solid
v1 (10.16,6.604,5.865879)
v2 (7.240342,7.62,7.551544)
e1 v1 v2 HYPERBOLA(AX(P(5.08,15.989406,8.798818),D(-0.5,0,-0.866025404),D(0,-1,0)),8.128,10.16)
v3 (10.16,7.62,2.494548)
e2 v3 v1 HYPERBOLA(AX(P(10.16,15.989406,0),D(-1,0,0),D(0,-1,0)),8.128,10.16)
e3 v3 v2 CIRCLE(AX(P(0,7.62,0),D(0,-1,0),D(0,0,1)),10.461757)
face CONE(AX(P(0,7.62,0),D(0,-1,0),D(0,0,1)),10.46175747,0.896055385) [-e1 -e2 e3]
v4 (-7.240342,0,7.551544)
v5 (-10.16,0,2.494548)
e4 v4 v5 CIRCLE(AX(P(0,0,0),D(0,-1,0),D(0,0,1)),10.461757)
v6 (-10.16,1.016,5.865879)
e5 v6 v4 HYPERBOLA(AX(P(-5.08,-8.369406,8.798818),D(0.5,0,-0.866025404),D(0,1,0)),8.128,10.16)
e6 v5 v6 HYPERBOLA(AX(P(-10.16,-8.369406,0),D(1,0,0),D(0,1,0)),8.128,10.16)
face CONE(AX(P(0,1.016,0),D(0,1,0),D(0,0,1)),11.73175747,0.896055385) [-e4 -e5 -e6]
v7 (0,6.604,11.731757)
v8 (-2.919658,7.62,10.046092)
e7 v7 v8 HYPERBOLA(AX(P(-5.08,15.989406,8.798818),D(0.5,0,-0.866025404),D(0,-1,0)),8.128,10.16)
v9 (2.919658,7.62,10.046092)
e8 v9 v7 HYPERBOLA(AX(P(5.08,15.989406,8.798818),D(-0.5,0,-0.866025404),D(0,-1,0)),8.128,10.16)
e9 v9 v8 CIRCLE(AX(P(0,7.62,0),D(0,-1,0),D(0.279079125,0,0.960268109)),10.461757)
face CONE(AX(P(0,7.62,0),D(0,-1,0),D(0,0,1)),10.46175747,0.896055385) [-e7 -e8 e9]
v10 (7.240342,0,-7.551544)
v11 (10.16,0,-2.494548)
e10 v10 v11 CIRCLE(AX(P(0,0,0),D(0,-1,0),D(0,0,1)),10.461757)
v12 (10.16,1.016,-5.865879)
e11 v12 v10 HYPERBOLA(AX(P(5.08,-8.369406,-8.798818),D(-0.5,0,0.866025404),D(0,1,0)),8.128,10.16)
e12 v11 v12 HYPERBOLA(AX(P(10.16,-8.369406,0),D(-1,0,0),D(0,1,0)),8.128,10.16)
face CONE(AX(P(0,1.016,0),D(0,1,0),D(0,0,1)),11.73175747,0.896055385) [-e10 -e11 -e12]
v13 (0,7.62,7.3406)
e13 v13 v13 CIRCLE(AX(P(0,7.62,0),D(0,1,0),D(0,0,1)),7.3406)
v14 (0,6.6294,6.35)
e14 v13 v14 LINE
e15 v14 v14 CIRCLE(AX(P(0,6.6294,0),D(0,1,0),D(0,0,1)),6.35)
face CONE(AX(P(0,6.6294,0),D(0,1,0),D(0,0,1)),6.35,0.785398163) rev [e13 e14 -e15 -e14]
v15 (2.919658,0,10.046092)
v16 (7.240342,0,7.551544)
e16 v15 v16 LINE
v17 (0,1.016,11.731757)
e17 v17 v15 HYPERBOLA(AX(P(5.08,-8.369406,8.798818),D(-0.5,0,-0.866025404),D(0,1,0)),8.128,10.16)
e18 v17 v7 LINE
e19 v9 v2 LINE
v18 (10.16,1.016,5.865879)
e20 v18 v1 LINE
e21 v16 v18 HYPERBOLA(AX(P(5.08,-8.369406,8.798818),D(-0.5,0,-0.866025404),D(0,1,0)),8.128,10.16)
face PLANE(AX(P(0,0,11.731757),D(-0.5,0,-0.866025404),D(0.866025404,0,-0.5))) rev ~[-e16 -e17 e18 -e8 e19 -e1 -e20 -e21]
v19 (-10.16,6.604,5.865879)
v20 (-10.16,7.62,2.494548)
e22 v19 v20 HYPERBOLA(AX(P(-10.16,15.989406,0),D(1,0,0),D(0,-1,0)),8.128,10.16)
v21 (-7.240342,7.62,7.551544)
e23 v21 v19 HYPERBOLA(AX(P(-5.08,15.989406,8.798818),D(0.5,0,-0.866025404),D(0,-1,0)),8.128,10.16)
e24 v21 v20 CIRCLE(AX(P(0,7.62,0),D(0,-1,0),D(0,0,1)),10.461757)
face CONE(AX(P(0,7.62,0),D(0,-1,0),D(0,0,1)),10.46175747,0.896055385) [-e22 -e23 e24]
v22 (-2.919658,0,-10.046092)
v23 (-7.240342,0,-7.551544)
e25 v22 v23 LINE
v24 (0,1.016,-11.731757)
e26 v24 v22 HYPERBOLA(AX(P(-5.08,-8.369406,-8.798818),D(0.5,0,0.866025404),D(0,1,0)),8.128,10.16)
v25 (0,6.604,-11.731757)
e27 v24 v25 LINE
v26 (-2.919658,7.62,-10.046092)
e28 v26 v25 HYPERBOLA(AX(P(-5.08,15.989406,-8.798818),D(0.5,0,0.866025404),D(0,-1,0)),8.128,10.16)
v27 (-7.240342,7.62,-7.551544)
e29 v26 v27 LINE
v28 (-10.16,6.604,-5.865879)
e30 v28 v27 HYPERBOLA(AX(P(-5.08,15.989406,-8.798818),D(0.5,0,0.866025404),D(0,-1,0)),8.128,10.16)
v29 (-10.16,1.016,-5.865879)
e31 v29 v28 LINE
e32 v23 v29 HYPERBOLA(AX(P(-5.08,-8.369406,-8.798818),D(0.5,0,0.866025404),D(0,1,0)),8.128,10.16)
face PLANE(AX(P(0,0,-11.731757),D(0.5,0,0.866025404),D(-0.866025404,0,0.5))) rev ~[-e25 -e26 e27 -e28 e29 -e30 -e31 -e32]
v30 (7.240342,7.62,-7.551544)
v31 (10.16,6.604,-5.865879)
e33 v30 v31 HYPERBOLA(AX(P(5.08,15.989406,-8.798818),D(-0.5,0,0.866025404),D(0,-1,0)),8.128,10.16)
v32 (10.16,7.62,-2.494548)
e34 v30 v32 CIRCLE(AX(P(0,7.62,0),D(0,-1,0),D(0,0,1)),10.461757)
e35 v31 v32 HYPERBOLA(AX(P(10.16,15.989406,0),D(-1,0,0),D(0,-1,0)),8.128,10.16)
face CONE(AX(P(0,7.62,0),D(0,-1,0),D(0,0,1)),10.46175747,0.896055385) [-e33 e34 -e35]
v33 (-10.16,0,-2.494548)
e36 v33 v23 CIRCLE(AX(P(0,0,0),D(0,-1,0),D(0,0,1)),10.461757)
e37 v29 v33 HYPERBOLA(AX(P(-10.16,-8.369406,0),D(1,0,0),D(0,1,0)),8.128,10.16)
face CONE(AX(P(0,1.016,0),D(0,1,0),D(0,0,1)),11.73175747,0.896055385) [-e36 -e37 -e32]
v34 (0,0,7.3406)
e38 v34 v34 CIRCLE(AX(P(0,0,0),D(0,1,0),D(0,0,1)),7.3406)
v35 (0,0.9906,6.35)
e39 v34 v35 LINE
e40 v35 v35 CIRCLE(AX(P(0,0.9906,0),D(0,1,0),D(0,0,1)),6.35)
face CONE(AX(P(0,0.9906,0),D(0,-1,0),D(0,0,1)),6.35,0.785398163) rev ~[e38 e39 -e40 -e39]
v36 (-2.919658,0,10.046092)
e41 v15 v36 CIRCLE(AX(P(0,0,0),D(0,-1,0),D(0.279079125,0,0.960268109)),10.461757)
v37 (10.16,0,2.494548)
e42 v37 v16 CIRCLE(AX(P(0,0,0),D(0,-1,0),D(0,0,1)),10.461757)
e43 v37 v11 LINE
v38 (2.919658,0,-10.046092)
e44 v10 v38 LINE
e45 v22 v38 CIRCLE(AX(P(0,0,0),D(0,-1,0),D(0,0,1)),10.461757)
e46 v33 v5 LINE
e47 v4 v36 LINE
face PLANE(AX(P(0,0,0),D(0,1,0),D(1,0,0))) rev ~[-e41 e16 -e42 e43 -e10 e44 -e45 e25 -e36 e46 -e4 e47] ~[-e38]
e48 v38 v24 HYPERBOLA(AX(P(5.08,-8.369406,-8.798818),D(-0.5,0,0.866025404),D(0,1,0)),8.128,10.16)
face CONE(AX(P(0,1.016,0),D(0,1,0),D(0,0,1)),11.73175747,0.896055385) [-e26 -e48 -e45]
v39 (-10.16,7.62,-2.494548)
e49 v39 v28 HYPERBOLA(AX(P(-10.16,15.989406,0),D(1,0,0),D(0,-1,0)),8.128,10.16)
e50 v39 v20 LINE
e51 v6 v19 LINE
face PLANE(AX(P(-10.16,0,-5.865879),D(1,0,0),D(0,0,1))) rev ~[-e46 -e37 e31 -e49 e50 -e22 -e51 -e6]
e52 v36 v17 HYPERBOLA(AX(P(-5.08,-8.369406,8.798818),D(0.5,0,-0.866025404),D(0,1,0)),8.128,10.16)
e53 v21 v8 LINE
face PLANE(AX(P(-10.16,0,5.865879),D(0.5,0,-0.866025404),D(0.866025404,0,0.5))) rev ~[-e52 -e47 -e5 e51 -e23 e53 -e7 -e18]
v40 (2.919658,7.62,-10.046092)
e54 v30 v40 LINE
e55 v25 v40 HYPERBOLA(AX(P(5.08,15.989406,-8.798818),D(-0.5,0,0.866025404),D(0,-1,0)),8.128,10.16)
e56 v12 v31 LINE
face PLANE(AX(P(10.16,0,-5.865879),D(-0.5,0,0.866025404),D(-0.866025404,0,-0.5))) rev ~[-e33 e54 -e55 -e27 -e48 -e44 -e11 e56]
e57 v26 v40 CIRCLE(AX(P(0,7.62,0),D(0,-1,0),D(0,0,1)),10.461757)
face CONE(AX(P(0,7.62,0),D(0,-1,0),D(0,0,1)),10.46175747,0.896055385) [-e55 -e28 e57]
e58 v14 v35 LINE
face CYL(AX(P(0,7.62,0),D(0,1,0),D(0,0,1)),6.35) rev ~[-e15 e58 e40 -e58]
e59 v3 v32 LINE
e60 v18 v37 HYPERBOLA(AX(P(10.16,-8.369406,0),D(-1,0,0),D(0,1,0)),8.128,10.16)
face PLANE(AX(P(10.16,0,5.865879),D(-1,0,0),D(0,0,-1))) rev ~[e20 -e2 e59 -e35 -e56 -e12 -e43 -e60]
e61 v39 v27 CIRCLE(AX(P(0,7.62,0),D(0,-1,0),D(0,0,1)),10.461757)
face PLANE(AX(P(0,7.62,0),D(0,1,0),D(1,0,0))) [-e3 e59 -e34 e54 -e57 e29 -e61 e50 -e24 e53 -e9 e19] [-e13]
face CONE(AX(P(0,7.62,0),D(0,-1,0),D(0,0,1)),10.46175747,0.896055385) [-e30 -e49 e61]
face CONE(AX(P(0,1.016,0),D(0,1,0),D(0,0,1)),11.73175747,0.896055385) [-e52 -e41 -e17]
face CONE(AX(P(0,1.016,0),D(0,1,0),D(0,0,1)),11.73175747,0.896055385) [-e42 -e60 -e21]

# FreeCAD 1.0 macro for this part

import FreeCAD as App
import Part
import Sketcher
Q = App.Units.Quantity


def edges_at(feature, points):
    """Names of the edges that pass closest to the given points."""
    edges = feature.Shape.Edges
    near = lambda p: min(range(len(edges)), key=lambda i: edges[i].distToShape(Part.Vertex(*p))[0])
    return sorted({f"Edge{near(p) + 1}" for p in points})

doc = App.newDocument("Part")
body = doc.addObject("PartDesign::Body", "Body")

sketch1 = body.newObject("Sketcher::SketchObject", "Sketch")
sketch1.AttachmentSupport = (doc.getObject("XZ_Plane"), [""])
sketch1.MapMode = "FlatFace"
sketch1.addGeometry(Part.LineSegment(App.Vector(0, 12, 0), App.Vector(10, 6, 0)), False)
sketch1.addGeometry(Part.LineSegment(App.Vector(10, 6, 0), App.Vector(10, -6, 0)), False)
sketch1.addGeometry(Part.LineSegment(App.Vector(10, -6, 0), App.Vector(0, -12, 0)), False)
sketch1.addGeometry(Part.LineSegment(App.Vector(0, -12, 0), App.Vector(-10, -6, 0)), False)
sketch1.addGeometry(Part.LineSegment(App.Vector(-10, -6, 0), App.Vector(-10, 6, 0)), False)
sketch1.addGeometry(Part.LineSegment(App.Vector(-10, 6, 0), App.Vector(0, 12, 0)), False)
sketch1.addConstraint(Sketcher.Constraint("Coincident", 0, 2, 1, 1))
sketch1.addConstraint(Sketcher.Constraint("Coincident", 1, 2, 2, 1))
sketch1.addConstraint(Sketcher.Constraint("Coincident", 2, 2, 3, 1))
sketch1.addConstraint(Sketcher.Constraint("Coincident", 3, 2, 4, 1))
sketch1.addConstraint(Sketcher.Constraint("Coincident", 4, 2, 5, 1))
sketch1.addConstraint(Sketcher.Constraint("Coincident", 5, 2, 0, 1))
sketch1.addConstraint(Sketcher.Constraint("Vertical", 1))
sketch1.addConstraint(Sketcher.Constraint("Vertical", 4))
sketch1.addConstraint(Sketcher.Constraint("Symmetric", 0, 2, 3, 2, -1, 1))
sketch1.addConstraint(Sketcher.Constraint("Symmetric", 2, 2, 5, 2, -1, 1))
sketch1.addConstraint(Sketcher.Constraint("PointOnObject", 2, 2, -2))
sketch1.addConstraint(Sketcher.Constraint("Parallel", 2, 5))
sketch1.addConstraint(Sketcher.Constraint("Horizontal", 1, 2, 3, 2))
sketch1.addConstraint(Sketcher.Constraint("Angle", 0, Q("-30 deg")))
sketch1.addConstraint(Sketcher.Constraint("DistanceX", -1, 1, 0, 2, Q("0.4 in")))
sketch1.addConstraint(Sketcher.Constraint("DistanceY", 1, 2, 1, 1, 11.731757))
pad1 = body.newObject("PartDesign::Pad", "Pad")
pad1.Profile = sketch1
pad1.Length = Q("0.3 in")
pad1.Reversed = True

sketch2 = body.newObject("Sketcher::SketchObject", "Sketch001")
sketch2.AttachmentSupport = (doc.getObject("XZ_Plane"), [""])
sketch2.MapMode = "FlatFace"
sketch2.AttachmentOffset = App.Placement(App.Vector(0, 0, -0.3 * 25.4), App.Rotation())
sketch2.addGeometry(Part.Circle(App.Vector(0, 0, 0), App.Vector(0, 0, 1), 6), False)
sketch2.addConstraint(Sketcher.Constraint("Coincident", 0, 3, -1, 1))
sketch2.addConstraint(Sketcher.Constraint("Diameter", 0, Q("0.5 in")))
pocket1 = body.newObject("PartDesign::Pocket", "Pocket")
pocket1.Profile = sketch2
pocket1.Type = "ThroughAll"
pocket1.Reversed = True
doc.recompute()

chamfer = body.newObject("PartDesign::Chamfer", "Chamfer")
chamfer.Base = (pocket1, edges_at(pocket1, [(0, 0, -6.35), (0, 7.62, -6.35)]))
chamfer.Size = Q("0.039 in")

sketch3 = body.newObject("Sketcher::SketchObject", "Sketch002")
sketch3.AttachmentSupport = (doc.getObject("YZ_Plane"), [""])
sketch3.MapMode = "FlatFace"
sketch3.addGeometry(Part.LineSegment(App.Vector(7.6, 10.5, 0), App.Vector(7.6, 11.7, 0)), False)
sketch3.addGeometry(Part.LineSegment(App.Vector(7.6, 11.7, 0), App.Vector(6.6, 11.7, 0)), False)
sketch3.addGeometry(Part.LineSegment(App.Vector(6.6, 11.7, 0), App.Vector(7.6, 10.5, 0)), False)
sketch3.addGeometry(Part.LineSegment(App.Vector(1, 11.7, 0), App.Vector(0, 11.7, 0)), False)
sketch3.addGeometry(Part.LineSegment(App.Vector(0, 11.7, 0), App.Vector(0, 10.5, 0)), False)
sketch3.addGeometry(Part.LineSegment(App.Vector(0, 10.5, 0), App.Vector(1, 11.7, 0)), False)
sketch3.addConstraint(Sketcher.Constraint("Coincident", 0, 2, 1, 1))
sketch3.addConstraint(Sketcher.Constraint("Coincident", 1, 2, 2, 1))
sketch3.addConstraint(Sketcher.Constraint("Coincident", 2, 2, 0, 1))
sketch3.addConstraint(Sketcher.Constraint("Coincident", 3, 2, 4, 1))
sketch3.addConstraint(Sketcher.Constraint("Coincident", 4, 2, 5, 1))
sketch3.addConstraint(Sketcher.Constraint("Coincident", 5, 2, 3, 1))
sketch3.addConstraint(Sketcher.Constraint("Vertical", 0))
sketch3.addConstraint(Sketcher.Constraint("Horizontal", 1))
sketch3.addConstraint(Sketcher.Constraint("Horizontal", 3))
sketch3.addConstraint(Sketcher.Constraint("Vertical", 4))
sketch3.addConstraint(Sketcher.Constraint("PointOnObject", 3, 2, -2))
sketch3.addConstraint(Sketcher.Constraint("Horizontal", 1, 2, 3, 2))
sketch3.addConstraint(Sketcher.Constraint("Horizontal", 2, 2, 4, 2))
sketch3.addConstraint(Sketcher.Constraint("Equal", 1, 3))
sketch3.addConstraint(Sketcher.Constraint("DistanceX", 1, 2, 1, 1, Q("0.04 in")))
sketch3.addConstraint(Sketcher.Constraint("DistanceY", 0, 1, 0, 2, Q("0.05 in")))
sketch3.addConstraint(Sketcher.Constraint("DistanceX", -1, 1, 0, 2, Q("0.3 in")))
sketch3.addConstraint(Sketcher.Constraint("DistanceY", -1, 1, 0, 2, 11.731757))
groove = body.newObject("PartDesign::Groove", "Groove")
groove.Profile = sketch3
groove.ReferenceAxis = (sketch3, ["H_Axis"])
groove.Angle = 360

doc.recompute()
